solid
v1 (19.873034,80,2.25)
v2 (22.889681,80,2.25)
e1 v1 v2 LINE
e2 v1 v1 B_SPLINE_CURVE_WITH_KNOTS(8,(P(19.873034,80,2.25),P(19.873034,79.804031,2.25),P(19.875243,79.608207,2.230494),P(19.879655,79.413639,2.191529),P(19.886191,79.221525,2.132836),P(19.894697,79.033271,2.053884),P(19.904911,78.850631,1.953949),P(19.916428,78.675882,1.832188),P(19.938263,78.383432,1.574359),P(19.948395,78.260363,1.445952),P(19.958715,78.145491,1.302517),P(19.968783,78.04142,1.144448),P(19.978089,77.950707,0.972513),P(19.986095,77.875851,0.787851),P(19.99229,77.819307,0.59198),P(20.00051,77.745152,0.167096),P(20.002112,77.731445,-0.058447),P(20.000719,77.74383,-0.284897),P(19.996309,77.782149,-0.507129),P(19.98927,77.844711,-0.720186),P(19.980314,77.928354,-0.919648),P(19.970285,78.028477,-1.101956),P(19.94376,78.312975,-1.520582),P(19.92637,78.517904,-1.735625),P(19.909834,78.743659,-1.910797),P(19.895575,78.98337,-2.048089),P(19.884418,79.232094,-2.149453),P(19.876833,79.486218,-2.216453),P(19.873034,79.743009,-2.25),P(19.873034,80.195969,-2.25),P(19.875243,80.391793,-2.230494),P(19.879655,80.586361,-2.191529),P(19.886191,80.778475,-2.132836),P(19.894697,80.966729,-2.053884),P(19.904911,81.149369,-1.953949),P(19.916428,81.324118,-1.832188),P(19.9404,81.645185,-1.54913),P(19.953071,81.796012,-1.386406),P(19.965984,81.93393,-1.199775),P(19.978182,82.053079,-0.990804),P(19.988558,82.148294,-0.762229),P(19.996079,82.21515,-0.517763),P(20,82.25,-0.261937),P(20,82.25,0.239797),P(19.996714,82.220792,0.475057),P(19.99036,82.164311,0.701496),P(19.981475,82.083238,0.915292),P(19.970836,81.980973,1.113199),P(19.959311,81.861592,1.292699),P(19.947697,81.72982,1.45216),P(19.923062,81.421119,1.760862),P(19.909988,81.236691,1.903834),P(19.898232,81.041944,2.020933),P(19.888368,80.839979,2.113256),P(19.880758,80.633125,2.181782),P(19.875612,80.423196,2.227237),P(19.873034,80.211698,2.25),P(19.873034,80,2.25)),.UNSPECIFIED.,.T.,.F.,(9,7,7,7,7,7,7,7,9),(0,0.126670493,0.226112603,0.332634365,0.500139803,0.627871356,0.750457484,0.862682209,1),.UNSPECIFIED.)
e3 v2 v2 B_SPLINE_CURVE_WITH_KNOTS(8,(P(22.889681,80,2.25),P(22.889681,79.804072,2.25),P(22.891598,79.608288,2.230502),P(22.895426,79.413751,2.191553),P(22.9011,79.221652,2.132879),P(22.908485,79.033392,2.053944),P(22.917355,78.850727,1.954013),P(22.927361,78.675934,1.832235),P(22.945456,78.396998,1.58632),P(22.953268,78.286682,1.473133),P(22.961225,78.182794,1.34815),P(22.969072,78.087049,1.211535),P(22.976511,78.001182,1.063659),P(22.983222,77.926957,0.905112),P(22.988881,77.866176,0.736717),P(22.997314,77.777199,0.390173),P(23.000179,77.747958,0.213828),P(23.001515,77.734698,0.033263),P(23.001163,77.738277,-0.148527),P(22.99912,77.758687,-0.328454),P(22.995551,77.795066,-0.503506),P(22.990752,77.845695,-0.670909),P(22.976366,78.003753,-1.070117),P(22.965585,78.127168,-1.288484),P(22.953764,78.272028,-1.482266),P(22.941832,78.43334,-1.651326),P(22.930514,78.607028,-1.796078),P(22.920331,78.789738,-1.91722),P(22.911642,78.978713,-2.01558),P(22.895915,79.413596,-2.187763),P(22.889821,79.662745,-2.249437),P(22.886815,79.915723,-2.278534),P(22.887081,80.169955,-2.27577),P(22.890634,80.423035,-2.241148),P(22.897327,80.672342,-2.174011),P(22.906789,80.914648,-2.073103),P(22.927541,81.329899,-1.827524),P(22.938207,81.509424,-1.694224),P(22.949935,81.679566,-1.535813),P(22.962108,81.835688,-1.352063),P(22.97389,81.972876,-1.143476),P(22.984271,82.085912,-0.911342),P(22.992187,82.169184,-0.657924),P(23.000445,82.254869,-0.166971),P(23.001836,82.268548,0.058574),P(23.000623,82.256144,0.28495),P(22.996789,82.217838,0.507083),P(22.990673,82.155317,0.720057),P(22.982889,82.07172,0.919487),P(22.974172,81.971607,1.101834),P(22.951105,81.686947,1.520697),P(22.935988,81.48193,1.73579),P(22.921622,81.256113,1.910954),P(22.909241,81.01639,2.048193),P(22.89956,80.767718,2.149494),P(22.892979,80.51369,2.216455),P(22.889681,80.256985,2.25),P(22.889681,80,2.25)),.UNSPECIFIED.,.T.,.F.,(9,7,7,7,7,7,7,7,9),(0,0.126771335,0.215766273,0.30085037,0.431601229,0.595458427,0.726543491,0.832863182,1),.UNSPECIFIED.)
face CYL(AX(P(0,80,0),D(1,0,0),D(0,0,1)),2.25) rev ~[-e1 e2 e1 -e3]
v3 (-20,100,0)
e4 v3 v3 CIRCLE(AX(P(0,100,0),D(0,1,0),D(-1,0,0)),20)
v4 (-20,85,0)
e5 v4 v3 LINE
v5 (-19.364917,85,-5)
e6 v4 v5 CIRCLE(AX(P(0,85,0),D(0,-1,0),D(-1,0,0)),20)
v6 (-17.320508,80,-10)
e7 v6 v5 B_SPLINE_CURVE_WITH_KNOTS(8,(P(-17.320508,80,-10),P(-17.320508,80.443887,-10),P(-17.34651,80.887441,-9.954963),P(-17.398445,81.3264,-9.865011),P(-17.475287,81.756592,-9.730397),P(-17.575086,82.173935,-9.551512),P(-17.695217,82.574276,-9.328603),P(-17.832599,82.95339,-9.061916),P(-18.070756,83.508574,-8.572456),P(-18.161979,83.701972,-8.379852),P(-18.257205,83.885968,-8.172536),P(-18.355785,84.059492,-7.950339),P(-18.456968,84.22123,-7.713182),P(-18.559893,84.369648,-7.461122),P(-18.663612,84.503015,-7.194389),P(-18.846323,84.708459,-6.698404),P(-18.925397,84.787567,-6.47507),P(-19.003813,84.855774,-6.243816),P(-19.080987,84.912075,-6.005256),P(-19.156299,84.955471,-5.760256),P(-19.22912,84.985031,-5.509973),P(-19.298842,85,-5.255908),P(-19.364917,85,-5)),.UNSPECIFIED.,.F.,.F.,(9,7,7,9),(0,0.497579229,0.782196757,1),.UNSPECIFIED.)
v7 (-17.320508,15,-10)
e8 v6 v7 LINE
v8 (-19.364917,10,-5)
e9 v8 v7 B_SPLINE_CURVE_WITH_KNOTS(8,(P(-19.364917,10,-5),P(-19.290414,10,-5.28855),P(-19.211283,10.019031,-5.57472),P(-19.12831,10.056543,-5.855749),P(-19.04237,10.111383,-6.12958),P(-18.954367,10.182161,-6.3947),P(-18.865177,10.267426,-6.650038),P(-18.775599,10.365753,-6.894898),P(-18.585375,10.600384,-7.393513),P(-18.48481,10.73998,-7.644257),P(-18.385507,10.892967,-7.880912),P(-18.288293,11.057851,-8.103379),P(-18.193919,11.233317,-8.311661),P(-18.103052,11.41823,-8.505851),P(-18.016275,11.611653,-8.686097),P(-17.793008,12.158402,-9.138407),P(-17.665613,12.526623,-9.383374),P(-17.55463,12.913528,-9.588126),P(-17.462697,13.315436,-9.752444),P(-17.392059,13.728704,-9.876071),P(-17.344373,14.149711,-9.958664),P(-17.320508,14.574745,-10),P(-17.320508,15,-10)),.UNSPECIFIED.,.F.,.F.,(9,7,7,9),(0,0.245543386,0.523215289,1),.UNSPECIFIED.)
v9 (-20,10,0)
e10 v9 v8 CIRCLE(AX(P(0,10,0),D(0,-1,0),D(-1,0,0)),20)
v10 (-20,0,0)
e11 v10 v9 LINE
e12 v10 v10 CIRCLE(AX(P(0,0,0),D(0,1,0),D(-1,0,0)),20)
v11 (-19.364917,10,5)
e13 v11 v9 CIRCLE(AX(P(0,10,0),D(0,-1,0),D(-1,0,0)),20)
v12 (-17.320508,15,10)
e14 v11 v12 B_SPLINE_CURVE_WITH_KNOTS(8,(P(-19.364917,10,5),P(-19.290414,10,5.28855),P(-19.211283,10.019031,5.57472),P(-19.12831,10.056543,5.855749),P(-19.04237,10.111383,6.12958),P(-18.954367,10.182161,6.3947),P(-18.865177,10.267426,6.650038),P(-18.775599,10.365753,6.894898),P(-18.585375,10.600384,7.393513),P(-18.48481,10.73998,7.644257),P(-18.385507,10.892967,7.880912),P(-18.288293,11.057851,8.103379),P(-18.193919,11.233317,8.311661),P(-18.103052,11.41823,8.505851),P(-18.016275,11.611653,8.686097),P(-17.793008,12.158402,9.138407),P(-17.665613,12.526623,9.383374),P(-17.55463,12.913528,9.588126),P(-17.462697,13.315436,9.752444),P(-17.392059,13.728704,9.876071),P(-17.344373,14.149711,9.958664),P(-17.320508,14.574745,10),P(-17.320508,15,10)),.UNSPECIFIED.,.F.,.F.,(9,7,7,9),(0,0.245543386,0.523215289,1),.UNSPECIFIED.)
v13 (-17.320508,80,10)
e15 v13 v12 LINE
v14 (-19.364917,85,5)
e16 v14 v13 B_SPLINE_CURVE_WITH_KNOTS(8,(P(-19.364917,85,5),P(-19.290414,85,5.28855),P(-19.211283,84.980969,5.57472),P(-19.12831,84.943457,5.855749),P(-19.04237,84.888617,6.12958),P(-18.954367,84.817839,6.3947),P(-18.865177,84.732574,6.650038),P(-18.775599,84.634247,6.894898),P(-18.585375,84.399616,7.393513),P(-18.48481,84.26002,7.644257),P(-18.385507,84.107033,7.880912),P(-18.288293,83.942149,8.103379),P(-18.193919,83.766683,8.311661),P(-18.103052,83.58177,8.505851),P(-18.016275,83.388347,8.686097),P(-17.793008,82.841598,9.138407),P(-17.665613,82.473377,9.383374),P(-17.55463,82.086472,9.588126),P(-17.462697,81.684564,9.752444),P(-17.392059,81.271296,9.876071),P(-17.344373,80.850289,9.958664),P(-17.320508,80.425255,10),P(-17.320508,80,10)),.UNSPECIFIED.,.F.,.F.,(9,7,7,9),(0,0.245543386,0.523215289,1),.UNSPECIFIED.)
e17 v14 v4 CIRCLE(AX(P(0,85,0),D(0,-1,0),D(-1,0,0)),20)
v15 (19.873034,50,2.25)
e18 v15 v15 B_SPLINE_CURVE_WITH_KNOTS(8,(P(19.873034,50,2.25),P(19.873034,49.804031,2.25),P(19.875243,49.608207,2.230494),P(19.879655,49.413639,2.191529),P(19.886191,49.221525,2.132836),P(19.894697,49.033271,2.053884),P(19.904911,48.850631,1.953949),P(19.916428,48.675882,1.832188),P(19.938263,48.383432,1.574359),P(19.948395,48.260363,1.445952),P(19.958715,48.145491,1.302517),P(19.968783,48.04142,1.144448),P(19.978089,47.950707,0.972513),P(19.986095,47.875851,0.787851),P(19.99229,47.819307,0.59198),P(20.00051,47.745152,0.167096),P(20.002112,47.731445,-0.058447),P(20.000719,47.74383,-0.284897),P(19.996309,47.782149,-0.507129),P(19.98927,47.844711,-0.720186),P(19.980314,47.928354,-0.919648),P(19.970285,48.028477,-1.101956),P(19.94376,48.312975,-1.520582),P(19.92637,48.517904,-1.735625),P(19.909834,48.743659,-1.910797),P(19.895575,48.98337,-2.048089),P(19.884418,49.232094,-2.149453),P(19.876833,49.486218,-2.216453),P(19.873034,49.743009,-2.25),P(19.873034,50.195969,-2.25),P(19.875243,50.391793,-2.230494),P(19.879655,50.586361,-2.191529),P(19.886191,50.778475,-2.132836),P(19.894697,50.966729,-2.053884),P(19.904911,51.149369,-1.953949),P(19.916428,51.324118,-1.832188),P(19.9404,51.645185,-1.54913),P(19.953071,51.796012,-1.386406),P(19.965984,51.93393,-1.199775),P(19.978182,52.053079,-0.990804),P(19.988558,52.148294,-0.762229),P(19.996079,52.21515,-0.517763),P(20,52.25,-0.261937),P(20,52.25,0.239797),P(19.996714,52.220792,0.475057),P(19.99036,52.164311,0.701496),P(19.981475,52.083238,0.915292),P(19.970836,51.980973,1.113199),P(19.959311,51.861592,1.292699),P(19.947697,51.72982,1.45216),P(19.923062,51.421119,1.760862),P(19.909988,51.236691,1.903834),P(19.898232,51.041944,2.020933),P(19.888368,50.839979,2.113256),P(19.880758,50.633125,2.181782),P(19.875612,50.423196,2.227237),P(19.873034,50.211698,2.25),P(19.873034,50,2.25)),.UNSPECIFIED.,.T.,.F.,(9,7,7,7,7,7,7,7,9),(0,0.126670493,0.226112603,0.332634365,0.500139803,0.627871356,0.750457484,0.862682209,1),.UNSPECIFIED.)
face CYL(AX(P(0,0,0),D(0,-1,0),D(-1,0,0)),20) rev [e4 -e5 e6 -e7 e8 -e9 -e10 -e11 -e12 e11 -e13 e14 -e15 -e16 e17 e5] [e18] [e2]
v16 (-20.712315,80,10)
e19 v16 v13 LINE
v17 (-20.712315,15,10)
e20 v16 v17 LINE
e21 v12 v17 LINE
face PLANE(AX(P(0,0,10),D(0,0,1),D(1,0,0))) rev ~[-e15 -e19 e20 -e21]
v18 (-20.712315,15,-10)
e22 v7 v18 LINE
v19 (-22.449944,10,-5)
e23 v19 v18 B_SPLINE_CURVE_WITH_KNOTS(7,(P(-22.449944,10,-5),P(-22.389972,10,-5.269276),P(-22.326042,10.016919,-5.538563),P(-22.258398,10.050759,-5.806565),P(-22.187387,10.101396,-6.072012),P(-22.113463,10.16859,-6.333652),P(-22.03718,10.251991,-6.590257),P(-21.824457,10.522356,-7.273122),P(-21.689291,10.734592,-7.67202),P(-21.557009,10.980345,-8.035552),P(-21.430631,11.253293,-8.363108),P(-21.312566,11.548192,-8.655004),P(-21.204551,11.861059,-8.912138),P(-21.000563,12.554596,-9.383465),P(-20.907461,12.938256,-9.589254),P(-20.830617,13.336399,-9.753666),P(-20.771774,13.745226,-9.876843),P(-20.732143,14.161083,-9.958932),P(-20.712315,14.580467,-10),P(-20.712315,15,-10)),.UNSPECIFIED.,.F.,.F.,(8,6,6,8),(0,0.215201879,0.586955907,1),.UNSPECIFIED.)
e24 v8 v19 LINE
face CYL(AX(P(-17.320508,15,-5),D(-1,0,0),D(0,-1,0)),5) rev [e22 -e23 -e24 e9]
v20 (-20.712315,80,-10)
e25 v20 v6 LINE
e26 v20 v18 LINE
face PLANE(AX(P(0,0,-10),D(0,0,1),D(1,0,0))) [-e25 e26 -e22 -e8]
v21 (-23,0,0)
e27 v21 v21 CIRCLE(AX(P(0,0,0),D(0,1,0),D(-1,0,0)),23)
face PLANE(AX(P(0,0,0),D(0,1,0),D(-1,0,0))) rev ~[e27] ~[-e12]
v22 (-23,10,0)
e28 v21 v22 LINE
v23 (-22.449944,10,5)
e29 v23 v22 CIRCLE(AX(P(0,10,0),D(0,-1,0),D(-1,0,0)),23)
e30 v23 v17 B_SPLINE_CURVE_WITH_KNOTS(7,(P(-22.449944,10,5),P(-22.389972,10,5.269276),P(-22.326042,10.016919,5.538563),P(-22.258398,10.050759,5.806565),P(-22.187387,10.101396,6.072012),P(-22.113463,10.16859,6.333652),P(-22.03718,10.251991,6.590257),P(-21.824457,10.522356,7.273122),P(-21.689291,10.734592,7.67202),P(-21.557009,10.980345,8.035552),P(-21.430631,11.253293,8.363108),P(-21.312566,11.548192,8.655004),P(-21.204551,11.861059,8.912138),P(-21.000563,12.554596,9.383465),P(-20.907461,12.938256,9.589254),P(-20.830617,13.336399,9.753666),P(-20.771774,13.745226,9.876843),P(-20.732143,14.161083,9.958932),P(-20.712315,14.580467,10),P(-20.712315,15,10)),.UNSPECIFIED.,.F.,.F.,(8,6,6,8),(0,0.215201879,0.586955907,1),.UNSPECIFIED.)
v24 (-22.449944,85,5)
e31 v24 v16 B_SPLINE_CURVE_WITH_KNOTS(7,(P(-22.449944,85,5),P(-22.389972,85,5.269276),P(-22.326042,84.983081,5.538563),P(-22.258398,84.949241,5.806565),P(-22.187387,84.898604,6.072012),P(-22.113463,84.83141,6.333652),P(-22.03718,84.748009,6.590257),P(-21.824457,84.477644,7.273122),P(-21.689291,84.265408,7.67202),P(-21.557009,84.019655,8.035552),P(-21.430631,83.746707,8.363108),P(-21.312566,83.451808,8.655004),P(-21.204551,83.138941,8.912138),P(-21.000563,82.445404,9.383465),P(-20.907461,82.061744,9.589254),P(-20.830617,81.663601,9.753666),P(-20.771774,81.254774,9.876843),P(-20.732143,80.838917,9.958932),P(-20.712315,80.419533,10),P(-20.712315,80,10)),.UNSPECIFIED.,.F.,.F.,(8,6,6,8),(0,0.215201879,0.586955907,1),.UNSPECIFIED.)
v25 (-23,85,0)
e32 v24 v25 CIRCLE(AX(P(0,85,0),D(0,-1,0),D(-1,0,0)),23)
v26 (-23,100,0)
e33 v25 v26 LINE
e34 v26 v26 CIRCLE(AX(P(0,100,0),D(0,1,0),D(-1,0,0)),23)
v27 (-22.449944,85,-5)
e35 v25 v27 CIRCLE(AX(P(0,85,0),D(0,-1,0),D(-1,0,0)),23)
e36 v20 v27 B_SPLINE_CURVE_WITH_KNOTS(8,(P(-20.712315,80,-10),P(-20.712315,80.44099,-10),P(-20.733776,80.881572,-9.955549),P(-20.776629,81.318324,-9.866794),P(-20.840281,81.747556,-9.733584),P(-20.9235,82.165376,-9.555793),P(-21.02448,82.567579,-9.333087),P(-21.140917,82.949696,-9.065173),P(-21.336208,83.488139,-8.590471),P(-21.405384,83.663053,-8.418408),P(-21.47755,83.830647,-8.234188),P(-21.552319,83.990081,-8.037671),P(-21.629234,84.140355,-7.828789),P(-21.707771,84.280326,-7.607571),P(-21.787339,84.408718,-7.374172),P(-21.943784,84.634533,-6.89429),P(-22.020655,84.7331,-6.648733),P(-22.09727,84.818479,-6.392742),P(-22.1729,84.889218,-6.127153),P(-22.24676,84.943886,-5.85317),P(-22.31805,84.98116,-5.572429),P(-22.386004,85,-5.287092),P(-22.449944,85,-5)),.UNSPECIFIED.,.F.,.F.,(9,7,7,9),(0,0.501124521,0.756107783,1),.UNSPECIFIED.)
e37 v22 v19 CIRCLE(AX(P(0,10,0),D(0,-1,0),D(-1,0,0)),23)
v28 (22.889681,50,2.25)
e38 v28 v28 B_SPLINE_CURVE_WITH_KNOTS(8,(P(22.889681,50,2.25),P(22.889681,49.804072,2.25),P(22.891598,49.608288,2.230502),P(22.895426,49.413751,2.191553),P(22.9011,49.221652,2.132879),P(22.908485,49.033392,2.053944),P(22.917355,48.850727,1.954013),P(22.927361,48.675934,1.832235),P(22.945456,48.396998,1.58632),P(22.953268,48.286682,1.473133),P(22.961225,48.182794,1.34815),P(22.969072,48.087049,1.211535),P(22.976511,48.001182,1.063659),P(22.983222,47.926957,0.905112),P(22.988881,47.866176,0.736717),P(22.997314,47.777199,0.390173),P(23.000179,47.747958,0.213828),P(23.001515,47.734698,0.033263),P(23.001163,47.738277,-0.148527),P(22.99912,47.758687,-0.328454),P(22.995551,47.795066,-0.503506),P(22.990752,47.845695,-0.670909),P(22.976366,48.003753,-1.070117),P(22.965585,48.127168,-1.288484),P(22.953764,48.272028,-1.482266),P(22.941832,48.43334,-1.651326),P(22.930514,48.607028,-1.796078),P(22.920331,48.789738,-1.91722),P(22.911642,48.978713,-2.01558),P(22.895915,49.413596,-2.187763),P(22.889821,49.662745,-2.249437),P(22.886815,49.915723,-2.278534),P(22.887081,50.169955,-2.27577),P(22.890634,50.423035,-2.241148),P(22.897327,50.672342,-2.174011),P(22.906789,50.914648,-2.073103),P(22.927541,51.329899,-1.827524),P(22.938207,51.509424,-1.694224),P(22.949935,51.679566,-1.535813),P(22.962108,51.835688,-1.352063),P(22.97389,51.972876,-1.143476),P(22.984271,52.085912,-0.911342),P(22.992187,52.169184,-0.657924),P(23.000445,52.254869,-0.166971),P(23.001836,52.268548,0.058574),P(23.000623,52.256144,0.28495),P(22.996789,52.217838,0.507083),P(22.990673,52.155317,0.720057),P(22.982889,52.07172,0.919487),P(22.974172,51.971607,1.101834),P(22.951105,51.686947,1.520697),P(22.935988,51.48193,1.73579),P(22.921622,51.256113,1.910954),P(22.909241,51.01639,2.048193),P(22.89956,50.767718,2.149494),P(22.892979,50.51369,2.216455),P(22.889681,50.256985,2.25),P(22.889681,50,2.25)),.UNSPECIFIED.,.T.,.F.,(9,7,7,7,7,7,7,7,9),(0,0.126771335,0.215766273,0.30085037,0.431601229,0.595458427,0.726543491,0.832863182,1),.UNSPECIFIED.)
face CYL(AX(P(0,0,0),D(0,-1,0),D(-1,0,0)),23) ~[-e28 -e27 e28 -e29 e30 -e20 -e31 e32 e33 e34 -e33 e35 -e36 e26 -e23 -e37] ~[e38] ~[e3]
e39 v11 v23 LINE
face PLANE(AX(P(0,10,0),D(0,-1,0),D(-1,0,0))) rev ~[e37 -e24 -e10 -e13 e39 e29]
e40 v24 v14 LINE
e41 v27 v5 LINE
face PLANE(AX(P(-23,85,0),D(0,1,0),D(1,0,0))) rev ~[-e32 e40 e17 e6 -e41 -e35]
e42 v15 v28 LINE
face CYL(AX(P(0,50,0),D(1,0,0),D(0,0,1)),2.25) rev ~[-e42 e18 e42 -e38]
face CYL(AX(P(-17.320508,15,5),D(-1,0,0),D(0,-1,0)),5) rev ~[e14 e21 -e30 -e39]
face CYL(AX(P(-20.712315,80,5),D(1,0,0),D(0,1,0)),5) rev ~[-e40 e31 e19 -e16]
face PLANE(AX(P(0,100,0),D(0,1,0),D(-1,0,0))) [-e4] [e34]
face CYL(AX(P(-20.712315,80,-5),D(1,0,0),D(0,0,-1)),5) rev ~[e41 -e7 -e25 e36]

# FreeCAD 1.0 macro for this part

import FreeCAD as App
import Part
import Sketcher
from FreeCAD import Vector


def edges_at(feature, points):
    """Names of the edges that pass closest to the given points."""
    edges = feature.Shape.Edges
    near = lambda p: min(range(len(edges)), key=lambda i: edges[i].distToShape(Part.Vertex(*p))[0])
    return sorted({f"Edge{near(p) + 1}" for p in points})

doc = App.newDocument("Part")
params = doc.addObject("Spreadsheet::Sheet", "Params")
for row, (alias, value) in enumerate([
    ("sketch1_diameter", "40 mm"),
    ("sketch1_diameter2", "46 mm"),
    ("pad1_length", "100 mm"),
    ("sketch2_height", "75 mm"),
    ("sketch2_width", "23 mm"),
    ("pocket1_length", "20 mm"),
    ("fillet_radius", "5 mm"),
    ("sketch3_diameter", "4.5 mm"),
    ("hole_diameter", "4.5 mm"),
], start=1):
    params.set(f"A{row}", alias)
    params.set(f"B{row}", "=" + value)
    params.setAlias(f"B{row}", alias)

body = doc.addObject("PartDesign::Body", "Body")

# Sketch on XZ plane
sketch1 = body.newObject("Sketcher::SketchObject", "Sketch")
sketch1.AttachmentSupport = (doc.getObject("XZ_Plane"), [""])
sketch1.MapMode = "FlatFace"
sketch1.addGeometry([
    Part.Circle(Vector(0, 0, 0), Vector(0, 0, 1), 23),
    Part.Circle(Vector(0, 0, 0), Vector(0, 0, 1), 20),
], False)
sketch1.addConstraint([
    Sketcher.Constraint("Coincident", 0, 3, -1, 1),
    Sketcher.Constraint("Coincident", 1, 3, -1, 1),
    Sketcher.Constraint("Diameter", 1, 40.0),
    Sketcher.Constraint("Diameter", 0, 46.0),
])
sketch1.setExpression("Constraints[2]", "Params.sketch1_diameter")
sketch1.setExpression("Constraints[3]", "Params.sketch1_diameter2")
pad1 = body.newObject("PartDesign::Pad", "Pad")
pad1.Profile = sketch1
pad1.setExpression("Length", "Params.pad1_length")
pad1.Reversed = True

# Sketch on XY plane
sketch2 = body.newObject("Sketcher::SketchObject", "Sketch001")
sketch2.AttachmentSupport = (doc.getObject("XY_Plane"), [""])
sketch2.MapMode = "FlatFace"
sketch2.addGeometry([
    Part.LineSegment(Vector(0, 85, 0), Vector(-23, 85, 0)),
    Part.LineSegment(Vector(-23, 85, 0), Vector(-23, 10, 0)),
    Part.LineSegment(Vector(-23, 10, 0), Vector(0, 10, 0)),
    Part.LineSegment(Vector(0, 10, 0), Vector(0, 85, 0)),
], False)
sketch2.addConstraint([
    Sketcher.Constraint("Coincident", 0, 2, 1, 1),
    Sketcher.Constraint("Coincident", 1, 2, 2, 1),
    Sketcher.Constraint("Coincident", 2, 2, 3, 1),
    Sketcher.Constraint("Coincident", 3, 2, 0, 1),
    Sketcher.Constraint("Horizontal", 0),
    Sketcher.Constraint("Vertical", 1),
    Sketcher.Constraint("Horizontal", 2),
    Sketcher.Constraint("Vertical", 3),
    Sketcher.Constraint("PointOnObject", 2, 2, -2),
    Sketcher.Constraint("DistanceY", 1, 2, 1, 1, 75.0),
    Sketcher.Constraint("DistanceY", -1, 1, 1, 2, 10.0),
    Sketcher.Constraint("DistanceX", 0, 2, 0, 1, 23.0),
])
sketch2.setExpression("Constraints[9]", "Params.sketch2_height")
sketch2.setExpression("Constraints[11]", "Params.sketch2_width")
pocket1 = body.newObject("PartDesign::Pocket", "Pocket")
pocket1.Profile = sketch2
pocket1.setExpression("Length", "Params.pocket1_length")
pocket1.Midplane = True
doc.recompute()

fillet = body.newObject("PartDesign::Fillet", "Fillet")
fillet.Base = (pocket1, edges_at(pocket1, [
    (-19.016, 85, -10),
    (-19.016, 85, 10),
    (-19.016, 10, 10),
    (-19.016, 10, -10),
]))
fillet.setExpression("Radius", "Params.fillet_radius")

# Sketch on YZ plane
sketch3 = body.newObject("Sketcher::SketchObject", "Sketch002")
sketch3.AttachmentSupport = (doc.getObject("YZ_Plane"), [""])
sketch3.MapMode = "FlatFace"
sketch3.addGeometry([
    Part.Circle(Vector(80, 0, 0), Vector(0, 0, 1), 2.25),
    Part.Circle(Vector(50, 0, 0), Vector(0, 0, 1), 2.25),
], False)
sketch3.addConstraint([
    Sketcher.Constraint("Equal", 0, 1),
    Sketcher.Constraint("PointOnObject", 0, 3, -1),
    Sketcher.Constraint("PointOnObject", 1, 3, -1),
    Sketcher.Constraint("Diameter", 0, 4.5),
    Sketcher.Constraint("DistanceX", -1, 1, 0, 3, 80.0),
    Sketcher.Constraint("DistanceX", -1, 1, 1, 3, 50.0),
])
sketch3.setExpression("Constraints[3]", "Params.sketch3_diameter")
doc.recompute()
hole = body.newObject("PartDesign::Hole", "Hole")
hole.Profile = sketch3
hole.ThreadType = "None"
hole.setExpression("Diameter", "Params.hole_diameter")
hole.DepthType = "ThroughAll"
hole.Reversed = True

doc.recompute()
